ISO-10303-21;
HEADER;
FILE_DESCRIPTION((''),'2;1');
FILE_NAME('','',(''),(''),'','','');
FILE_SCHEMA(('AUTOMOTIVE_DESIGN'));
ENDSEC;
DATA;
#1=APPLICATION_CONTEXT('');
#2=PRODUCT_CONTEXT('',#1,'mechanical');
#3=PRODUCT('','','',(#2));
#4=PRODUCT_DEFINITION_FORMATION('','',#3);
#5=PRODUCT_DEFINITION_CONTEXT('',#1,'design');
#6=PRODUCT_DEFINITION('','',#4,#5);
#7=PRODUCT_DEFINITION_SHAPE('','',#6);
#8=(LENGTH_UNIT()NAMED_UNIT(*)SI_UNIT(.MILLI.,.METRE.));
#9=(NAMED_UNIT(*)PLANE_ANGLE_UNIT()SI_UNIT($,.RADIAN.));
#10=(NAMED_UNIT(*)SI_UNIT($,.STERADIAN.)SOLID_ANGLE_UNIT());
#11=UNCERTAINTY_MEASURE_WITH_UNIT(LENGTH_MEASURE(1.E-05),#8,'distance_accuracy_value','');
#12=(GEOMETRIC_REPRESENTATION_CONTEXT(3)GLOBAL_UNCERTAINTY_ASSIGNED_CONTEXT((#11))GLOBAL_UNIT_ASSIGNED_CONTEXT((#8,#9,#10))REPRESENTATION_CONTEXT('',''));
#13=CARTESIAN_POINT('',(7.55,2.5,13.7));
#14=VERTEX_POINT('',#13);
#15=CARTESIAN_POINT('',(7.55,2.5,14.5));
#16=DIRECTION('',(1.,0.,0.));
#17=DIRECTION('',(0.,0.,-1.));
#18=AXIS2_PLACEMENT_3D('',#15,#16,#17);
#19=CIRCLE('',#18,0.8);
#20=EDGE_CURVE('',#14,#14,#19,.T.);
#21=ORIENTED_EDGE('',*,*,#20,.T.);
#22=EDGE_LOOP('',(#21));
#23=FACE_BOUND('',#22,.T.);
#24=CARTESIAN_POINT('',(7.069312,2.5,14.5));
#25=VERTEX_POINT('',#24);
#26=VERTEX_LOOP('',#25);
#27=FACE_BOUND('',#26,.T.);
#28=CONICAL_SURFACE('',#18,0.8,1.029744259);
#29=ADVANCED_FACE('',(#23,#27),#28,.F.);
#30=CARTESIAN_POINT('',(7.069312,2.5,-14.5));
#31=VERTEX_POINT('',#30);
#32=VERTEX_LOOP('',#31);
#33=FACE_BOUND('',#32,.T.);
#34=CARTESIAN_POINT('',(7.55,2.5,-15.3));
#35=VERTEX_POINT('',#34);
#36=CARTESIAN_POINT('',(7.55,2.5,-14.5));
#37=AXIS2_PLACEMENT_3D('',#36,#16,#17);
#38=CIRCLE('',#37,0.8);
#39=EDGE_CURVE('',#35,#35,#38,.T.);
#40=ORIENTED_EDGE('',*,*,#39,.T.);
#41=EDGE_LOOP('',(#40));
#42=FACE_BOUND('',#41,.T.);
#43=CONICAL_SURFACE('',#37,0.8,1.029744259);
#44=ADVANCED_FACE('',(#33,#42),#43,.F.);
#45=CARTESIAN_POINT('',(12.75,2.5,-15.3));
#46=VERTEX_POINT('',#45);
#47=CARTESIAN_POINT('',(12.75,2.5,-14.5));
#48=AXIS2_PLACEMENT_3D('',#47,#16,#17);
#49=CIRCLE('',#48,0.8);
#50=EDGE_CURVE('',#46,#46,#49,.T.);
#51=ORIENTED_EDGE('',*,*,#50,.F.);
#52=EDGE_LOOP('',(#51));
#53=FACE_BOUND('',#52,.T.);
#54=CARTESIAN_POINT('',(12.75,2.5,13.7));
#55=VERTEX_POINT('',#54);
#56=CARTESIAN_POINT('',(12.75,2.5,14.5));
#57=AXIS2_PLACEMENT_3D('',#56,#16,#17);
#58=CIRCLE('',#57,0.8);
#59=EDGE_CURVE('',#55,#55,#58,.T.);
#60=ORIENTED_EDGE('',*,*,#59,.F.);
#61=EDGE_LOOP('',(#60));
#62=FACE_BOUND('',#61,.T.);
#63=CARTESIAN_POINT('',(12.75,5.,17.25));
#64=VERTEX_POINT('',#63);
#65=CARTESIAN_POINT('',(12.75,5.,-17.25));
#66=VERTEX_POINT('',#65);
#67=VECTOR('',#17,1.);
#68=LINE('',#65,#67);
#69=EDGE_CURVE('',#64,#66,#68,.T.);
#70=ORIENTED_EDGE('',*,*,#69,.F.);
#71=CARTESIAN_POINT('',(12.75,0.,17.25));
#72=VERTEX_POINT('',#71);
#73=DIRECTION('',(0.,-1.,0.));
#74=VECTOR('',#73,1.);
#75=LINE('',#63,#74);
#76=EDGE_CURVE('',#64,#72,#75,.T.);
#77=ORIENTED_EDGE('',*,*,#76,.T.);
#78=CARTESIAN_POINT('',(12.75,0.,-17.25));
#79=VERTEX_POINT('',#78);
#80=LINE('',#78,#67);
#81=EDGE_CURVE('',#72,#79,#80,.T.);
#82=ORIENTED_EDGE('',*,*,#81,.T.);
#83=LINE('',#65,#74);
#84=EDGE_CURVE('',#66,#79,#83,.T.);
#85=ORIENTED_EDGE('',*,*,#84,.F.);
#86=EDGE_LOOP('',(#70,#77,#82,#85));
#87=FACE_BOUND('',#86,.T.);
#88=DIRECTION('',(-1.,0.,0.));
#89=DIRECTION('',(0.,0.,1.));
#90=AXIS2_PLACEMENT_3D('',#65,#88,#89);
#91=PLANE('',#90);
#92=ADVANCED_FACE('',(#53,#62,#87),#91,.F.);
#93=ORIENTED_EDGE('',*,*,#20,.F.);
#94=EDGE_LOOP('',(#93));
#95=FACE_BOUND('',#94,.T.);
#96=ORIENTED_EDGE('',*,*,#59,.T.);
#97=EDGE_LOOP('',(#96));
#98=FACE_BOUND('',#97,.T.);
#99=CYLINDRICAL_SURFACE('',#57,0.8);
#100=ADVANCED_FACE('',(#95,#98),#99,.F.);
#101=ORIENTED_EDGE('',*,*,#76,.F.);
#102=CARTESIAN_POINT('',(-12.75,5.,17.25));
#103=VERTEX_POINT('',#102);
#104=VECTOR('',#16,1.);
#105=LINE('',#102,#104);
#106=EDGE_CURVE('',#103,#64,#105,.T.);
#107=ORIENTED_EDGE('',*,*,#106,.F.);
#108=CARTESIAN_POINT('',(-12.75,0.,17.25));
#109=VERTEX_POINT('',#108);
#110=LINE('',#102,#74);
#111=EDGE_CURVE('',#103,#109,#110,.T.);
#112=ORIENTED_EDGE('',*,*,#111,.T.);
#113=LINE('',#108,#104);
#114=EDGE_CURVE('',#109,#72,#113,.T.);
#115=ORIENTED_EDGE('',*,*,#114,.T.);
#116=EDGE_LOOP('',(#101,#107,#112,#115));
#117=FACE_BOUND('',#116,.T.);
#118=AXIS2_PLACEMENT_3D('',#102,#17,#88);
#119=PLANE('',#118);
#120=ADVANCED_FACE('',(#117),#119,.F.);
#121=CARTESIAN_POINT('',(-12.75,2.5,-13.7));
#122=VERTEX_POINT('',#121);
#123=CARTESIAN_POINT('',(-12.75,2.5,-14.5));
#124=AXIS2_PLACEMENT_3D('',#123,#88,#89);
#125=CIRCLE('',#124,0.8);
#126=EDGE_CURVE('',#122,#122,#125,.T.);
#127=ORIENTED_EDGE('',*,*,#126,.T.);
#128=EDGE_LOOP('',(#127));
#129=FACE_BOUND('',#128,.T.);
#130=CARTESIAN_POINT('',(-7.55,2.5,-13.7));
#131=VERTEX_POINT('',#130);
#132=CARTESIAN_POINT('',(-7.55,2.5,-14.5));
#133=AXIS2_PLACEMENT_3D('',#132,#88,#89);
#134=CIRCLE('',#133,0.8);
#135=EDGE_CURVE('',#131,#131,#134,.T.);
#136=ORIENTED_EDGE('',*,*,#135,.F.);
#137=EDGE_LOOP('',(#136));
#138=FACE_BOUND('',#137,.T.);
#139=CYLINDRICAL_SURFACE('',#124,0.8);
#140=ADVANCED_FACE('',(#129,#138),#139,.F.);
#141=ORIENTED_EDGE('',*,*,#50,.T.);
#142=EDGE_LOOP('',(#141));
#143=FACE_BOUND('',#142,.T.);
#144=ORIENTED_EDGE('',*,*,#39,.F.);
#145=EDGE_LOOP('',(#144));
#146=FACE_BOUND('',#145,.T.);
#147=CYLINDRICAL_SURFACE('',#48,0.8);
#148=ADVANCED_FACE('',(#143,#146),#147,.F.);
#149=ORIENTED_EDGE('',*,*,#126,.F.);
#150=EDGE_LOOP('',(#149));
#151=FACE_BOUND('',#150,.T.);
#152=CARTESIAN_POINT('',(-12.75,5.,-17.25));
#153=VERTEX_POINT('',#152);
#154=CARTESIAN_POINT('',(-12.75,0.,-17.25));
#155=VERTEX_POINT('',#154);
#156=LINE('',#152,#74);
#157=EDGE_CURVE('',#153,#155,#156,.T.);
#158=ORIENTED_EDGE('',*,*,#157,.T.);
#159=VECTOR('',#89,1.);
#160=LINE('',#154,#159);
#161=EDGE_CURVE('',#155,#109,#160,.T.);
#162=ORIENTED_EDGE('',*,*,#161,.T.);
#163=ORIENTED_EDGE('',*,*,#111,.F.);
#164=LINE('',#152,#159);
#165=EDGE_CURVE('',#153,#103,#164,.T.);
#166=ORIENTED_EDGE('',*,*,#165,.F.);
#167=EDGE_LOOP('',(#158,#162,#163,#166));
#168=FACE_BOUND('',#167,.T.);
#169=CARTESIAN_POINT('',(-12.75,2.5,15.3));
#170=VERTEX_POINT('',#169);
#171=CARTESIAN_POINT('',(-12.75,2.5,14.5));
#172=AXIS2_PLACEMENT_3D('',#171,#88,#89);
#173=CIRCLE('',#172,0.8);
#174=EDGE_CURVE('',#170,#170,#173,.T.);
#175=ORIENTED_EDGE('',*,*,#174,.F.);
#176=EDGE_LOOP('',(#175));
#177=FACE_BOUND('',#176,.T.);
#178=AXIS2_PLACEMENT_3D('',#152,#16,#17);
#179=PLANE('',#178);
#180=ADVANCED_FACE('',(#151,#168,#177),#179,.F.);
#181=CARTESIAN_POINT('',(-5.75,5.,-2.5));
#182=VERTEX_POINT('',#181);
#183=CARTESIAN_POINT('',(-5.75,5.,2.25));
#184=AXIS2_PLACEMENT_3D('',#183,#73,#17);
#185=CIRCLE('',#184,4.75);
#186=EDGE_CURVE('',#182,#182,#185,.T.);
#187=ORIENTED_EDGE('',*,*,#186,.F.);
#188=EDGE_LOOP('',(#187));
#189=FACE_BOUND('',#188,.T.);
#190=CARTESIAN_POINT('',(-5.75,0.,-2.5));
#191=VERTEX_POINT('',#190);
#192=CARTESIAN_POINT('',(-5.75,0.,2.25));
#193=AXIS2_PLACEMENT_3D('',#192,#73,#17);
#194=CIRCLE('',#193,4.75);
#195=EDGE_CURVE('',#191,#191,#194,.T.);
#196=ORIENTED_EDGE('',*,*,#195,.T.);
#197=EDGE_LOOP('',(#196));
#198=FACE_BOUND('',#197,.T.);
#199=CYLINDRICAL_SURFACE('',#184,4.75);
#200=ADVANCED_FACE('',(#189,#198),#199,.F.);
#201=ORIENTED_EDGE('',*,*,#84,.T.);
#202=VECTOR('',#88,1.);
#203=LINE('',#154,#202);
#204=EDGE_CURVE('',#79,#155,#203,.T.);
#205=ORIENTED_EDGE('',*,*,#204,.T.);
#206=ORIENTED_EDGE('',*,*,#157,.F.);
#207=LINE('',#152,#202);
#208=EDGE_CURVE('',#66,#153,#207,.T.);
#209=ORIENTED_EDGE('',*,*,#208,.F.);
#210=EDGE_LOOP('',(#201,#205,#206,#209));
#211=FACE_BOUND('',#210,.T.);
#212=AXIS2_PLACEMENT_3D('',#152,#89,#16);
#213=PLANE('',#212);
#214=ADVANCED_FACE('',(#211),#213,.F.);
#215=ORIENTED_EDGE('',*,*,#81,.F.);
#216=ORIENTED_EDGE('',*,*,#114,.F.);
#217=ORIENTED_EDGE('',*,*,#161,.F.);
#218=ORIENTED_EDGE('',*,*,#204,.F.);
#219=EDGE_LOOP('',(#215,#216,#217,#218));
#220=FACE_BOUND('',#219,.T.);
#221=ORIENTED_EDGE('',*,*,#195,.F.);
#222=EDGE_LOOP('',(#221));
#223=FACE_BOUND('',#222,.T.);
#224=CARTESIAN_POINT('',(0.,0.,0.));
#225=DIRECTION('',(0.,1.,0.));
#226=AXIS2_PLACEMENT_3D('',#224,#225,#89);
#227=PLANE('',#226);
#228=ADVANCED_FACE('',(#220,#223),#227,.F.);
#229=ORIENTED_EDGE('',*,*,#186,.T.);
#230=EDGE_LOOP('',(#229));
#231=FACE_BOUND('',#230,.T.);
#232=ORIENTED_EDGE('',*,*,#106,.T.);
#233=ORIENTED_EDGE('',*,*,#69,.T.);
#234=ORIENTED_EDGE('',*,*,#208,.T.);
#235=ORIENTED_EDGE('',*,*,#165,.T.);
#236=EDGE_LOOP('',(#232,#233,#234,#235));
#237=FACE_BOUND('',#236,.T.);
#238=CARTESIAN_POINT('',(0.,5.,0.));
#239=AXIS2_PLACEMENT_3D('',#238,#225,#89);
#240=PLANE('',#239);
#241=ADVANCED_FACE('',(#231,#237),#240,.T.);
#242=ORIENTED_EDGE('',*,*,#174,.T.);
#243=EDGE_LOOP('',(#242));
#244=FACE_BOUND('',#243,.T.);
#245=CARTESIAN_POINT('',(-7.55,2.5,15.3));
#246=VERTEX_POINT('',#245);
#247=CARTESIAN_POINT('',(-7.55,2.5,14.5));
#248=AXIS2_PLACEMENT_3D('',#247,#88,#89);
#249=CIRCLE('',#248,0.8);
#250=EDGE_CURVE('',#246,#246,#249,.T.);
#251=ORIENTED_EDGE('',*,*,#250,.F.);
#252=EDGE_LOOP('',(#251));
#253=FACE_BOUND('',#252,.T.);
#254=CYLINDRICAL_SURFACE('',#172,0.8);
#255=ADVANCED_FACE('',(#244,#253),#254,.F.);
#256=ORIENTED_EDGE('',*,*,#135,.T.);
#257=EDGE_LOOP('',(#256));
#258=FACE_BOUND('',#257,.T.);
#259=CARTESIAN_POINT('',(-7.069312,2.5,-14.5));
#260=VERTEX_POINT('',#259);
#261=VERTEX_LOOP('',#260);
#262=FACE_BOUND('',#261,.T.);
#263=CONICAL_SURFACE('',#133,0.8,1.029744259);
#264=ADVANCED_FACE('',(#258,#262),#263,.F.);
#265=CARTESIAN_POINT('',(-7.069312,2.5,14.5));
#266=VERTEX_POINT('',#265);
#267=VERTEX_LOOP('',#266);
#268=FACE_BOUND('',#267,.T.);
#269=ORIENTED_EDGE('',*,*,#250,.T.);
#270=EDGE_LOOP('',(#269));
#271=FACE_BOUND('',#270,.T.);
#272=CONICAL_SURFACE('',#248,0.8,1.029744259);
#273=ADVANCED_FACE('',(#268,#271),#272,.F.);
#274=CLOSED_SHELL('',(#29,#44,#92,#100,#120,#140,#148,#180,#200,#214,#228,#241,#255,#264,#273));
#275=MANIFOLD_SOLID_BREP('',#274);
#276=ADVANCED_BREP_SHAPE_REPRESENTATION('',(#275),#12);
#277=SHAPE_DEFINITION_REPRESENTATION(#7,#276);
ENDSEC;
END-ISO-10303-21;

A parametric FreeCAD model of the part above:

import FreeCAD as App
import Part
import Sketcher
Q = App.Units.Quantity

doc = App.newDocument("Part")
body = doc.addObject("PartDesign::Body", "Body")

sketch1 = body.newObject("Sketcher::SketchObject", "Sketch")
sketch1.AttachmentSupport = (doc.getObject("XZ_Plane"), [""])
sketch1.MapMode = "FlatFace"
sketch1.addGeometry([
    Part.LineSegment(App.Vector(-13, -17, 0), App.Vector(-13, 17, 0)),
    Part.LineSegment(App.Vector(-13, 17, 0), App.Vector(13, 17, 0)),
    Part.LineSegment(App.Vector(13, 17, 0), App.Vector(13, -17, 0)),
    Part.LineSegment(App.Vector(13, -17, 0), App.Vector(-13, -17, 0)),
], False)
sketch1.addConstraint([
    Sketcher.Constraint("Coincident", 0, 2, 1, 1),
    Sketcher.Constraint("Coincident", 1, 2, 2, 1),
    Sketcher.Constraint("Coincident", 2, 2, 3, 1),
    Sketcher.Constraint("Coincident", 3, 2, 0, 1),
    Sketcher.Constraint("Vertical", 0),
    Sketcher.Constraint("Horizontal", 1),
    Sketcher.Constraint("Vertical", 2),
    Sketcher.Constraint("Horizontal", 3),
    Sketcher.Constraint("Symmetric", 0, 2, 2, 2, -1, 1),
    Sketcher.Constraint("DistanceX", 1, 1, 1, 2, Q("25.5 mm")),
    Sketcher.Constraint("DistanceY", 0, 1, 0, 2, Q("34.5 mm")),
])
pad1 = body.newObject("PartDesign::Pad", "Pad")
pad1.Profile = sketch1
pad1.Length = 5
pad1.Reversed = True

sketch2 = body.newObject("Sketcher::SketchObject", "Sketch001")
sketch2.AttachmentSupport = (doc.getObject("XZ_Plane"), [""])
sketch2.MapMode = "FlatFace"
sketch2.AttachmentOffset = App.Placement(App.Vector(0, 0, -2.5), App.Rotation())
sketch2.addGeometry([
    Part.LineSegment(App.Vector(7.1, -14.5, 0), App.Vector(12.8, -14.5, 0)),
    Part.LineSegment(App.Vector(12.8, -14.5, 0), App.Vector(12.8, -15.3, 0)),
    Part.LineSegment(App.Vector(12.8, -15.3, 0), App.Vector(7.5, -15.3, 0)),
    Part.LineSegment(App.Vector(7.5, -15.3, 0), App.Vector(7.1, -14.5, 0)),
], False)
sketch2.addGeometry(Part.LineSegment(App.Vector(12.8, -14.5, 0), App.Vector(7.1, -14.5, 0)), True)
sketch2.addConstraint([
    Sketcher.Constraint("Coincident", 0, 2, 1, 1),
    Sketcher.Constraint("Coincident", 1, 2, 2, 1),
    Sketcher.Constraint("Coincident", 2, 2, 3, 1),
    Sketcher.Constraint("Coincident", 3, 2, 0, 1),
    Sketcher.Constraint("Horizontal", 0),
    Sketcher.Constraint("Vertical", 1),
    Sketcher.Constraint("Horizontal", 2),
    Sketcher.Constraint("Horizontal", 4),
    Sketcher.Constraint("Coincident", 4, 1, 0, 2),
    Sketcher.Constraint("Equal", 0, 4),
    Sketcher.Constraint("Angle", 3, Q("121 deg")),
    Sketcher.Constraint("DistanceX", 2, 2, 2, 1, Q("5.2 mm")),
    Sketcher.Constraint("DistanceY", 1, 2, 1, 1, Q("0.8 mm")),
    Sketcher.Constraint("DistanceY", 0, 2, -1, 1, Q("14.5 mm")),
    Sketcher.Constraint("DistanceX", -1, 1, 0, 2, Q("12.75 mm")),
])
groove = body.newObject("PartDesign::Groove", "Groove")
groove.Profile = sketch2
groove.ReferenceAxis = (sketch2, ["Axis0"])
groove.Angle = 360
doc.recompute()

linearpattern = body.newObject("PartDesign::LinearPattern", "LinearPattern")
linearpattern.Originals = [groove]
linearpattern.Direction = (doc.getObject("Z_Axis"), [""])
linearpattern.Mode = "offset"
linearpattern.Offset = 29
linearpattern.Occurrences = 2
body.Tip = linearpattern
doc.recompute()

mirrored = body.newObject("PartDesign::Mirrored", "Mirrored")
mirrored.Originals = [groove]
mirrored.MirrorPlane = (doc.getObject("YZ_Plane"), [""])
body.Tip = mirrored

sketch3 = body.newObject("Sketcher::SketchObject", "Sketch002")
sketch3.AttachmentSupport = (doc.getObject("XZ_Plane"), [""])
sketch3.MapMode = "FlatFace"
sketch3.AttachmentOffset = App.Placement(App.Vector(0, 0, -2.5), App.Rotation())
sketch3.addGeometry([
    Part.LineSegment(App.Vector(-12.8, 14.5, 0), App.Vector(-7.1, 14.5, 0)),
    Part.LineSegment(App.Vector(-7.1, 14.5, 0), App.Vector(-7.5, 13.7, 0)),
    Part.LineSegment(App.Vector(-7.5, 13.7, 0), App.Vector(-12.8, 13.7, 0)),
    Part.LineSegment(App.Vector(-12.8, 13.7, 0), App.Vector(-12.8, 14.5, 0)),
], False)
sketch3.addGeometry(Part.LineSegment(App.Vector(-7.1, 14.5, 0), App.Vector(-12.8, 14.5, 0)), True)
sketch3.addConstraint([
    Sketcher.Constraint("Coincident", 0, 2, 1, 1),
    Sketcher.Constraint("Coincident", 1, 2, 2, 1),
    Sketcher.Constraint("Coincident", 2, 2, 3, 1),
    Sketcher.Constraint("Coincident", 3, 2, 0, 1),
    Sketcher.Constraint("Horizontal", 0),
    Sketcher.Constraint("Horizontal", 2),
    Sketcher.Constraint("Vertical", 3),
    Sketcher.Constraint("Horizontal", 4),
    Sketcher.Constraint("Coincident", 4, 1, 0, 2),
    Sketcher.Constraint("Vertical", 2, 2, 4, 2),
    Sketcher.Constraint("Angle", 1, Q("-121 deg")),
    Sketcher.Constraint("DistanceX", 2, 2, 2, 1, Q("5.2 mm")),
    Sketcher.Constraint("DistanceY", 3, 1, 3, 2, Q("0.8 mm")),
    Sketcher.Constraint("DistanceY", -1, 1, 0, 2, Q("14.5 mm")),
    Sketcher.Constraint("DistanceX", 1, 2, -1, 1, Q("7.55 mm")),
])
groove2 = body.newObject("PartDesign::Groove", "Groove001")
groove2.Profile = sketch3
groove2.ReferenceAxis = (sketch3, ["Axis0"])
groove2.Angle = 360

sketch4 = body.newObject("Sketcher::SketchObject", "Sketch003")
sketch4.AttachmentSupport = (doc.getObject("XZ_Plane"), [""])
sketch4.MapMode = "FlatFace"
sketch4.addGeometry(Part.Circle(App.Vector(-5.8, 2.2, 0), App.Vector(0, 0, 1), 4.8), False)
sketch4.addConstraint([
    Sketcher.Constraint("Diameter", 0, Q("9.5 mm")),
    Sketcher.Constraint("DistanceX", 0, 3, -1, 1, Q("5.75 mm")),
    Sketcher.Constraint("DistanceY", -1, 1, 0, 3, Q("2.25 mm")),
])
pocket1 = body.newObject("PartDesign::Pocket", "Pocket")
pocket1.Profile = sketch4
pocket1.Type = "ThroughAll"

doc.recompute()
